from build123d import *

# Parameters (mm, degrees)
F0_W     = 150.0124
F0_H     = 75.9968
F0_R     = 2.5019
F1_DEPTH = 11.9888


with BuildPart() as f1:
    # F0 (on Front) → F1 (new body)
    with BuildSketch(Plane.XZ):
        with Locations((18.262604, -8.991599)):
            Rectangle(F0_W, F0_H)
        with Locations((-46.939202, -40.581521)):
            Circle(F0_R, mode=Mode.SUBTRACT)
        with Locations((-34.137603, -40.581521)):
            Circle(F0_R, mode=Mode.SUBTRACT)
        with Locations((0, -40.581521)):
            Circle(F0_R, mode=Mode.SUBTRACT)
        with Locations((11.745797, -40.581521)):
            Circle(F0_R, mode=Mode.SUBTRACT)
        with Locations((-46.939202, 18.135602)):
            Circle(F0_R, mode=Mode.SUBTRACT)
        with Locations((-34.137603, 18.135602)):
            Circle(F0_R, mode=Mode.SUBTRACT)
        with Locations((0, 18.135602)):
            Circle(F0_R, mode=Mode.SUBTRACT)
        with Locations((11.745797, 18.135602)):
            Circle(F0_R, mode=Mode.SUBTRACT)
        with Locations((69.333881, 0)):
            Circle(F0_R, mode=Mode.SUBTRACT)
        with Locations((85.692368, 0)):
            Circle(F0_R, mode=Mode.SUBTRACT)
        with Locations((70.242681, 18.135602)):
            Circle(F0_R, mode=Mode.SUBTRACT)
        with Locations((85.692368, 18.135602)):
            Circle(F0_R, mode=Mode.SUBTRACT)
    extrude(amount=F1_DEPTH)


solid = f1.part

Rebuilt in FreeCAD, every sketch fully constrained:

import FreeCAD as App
import Part
import Sketcher
Q = App.Units.Quantity

doc = App.newDocument("Part")
body = doc.addObject("PartDesign::Body", "Body")

sketch1 = body.newObject("Sketcher::SketchObject", "Sketch")
sketch1.AttachmentSupport = (doc.getObject("XZ_Plane"), [""])
sketch1.MapMode = "FlatFace"
sketch1.addGeometry([
    Part.LineSegment(App.Vector(-56.743596, 29.006801, 0), App.Vector(-56.743596, -46.989999, 0)),
    Part.LineSegment(App.Vector(-56.743596, -46.989999, 0), App.Vector(93.268804, -46.989999, 0)),
    Part.LineSegment(App.Vector(93.268804, -46.989999, 0), App.Vector(93.268804, 29.006801, 0)),
    Part.LineSegment(App.Vector(93.268804, 29.006801, 0), App.Vector(-56.743596, 29.006801, 0)),
    Part.Circle(App.Vector(-46.939202, -40.581521, 0), App.Vector(0, 0, 1), 2.5019),
    Part.Circle(App.Vector(-34.137603, -40.581521, 0), App.Vector(0, 0, 1), 2.5019),
    Part.Circle(App.Vector(0, -40.581521, 0), App.Vector(0, 0, 1), 2.5019),
    Part.Circle(App.Vector(11.745797, -40.581521, 0), App.Vector(0, 0, 1), 2.5019),
    Part.Circle(App.Vector(-46.939202, 18.135602, 0), App.Vector(0, 0, 1), 2.5019),
    Part.Circle(App.Vector(-34.137603, 18.135602, 0), App.Vector(0, 0, 1), 2.5019),
    Part.Circle(App.Vector(0, 18.135602, 0), App.Vector(0, 0, 1), 2.5019),
    Part.Circle(App.Vector(11.745797, 18.135602, 0), App.Vector(0, 0, 1), 2.5019),
    Part.Circle(App.Vector(69.333881, 0, 0), App.Vector(0, 0, 1), 2.5019),
    Part.Circle(App.Vector(85.692368, 0, 0), App.Vector(0, 0, 1), 2.5019),
    Part.Circle(App.Vector(70.242681, 18.135602, 0), App.Vector(0, 0, 1), 2.5019),
    Part.Circle(App.Vector(85.692368, 18.135602, 0), App.Vector(0, 0, 1), 2.5019),
], False)
sketch1.addConstraint([
    Sketcher.Constraint("Coincident", 0, 2, 1, 1),
    Sketcher.Constraint("Coincident", 1, 2, 2, 1),
    Sketcher.Constraint("Coincident", 2, 2, 3, 1),
    Sketcher.Constraint("Coincident", 3, 2, 0, 1),
    Sketcher.Constraint("Vertical", 0),
    Sketcher.Constraint("Horizontal", 1),
    Sketcher.Constraint("Vertical", 2),
    Sketcher.Constraint("Horizontal", 3),
    Sketcher.Constraint("Equal", 4, 5),
    Sketcher.Constraint("Equal", 5, 6),
    Sketcher.Constraint("Equal", 6, 7),
    Sketcher.Constraint("Equal", 7, 8),
    Sketcher.Constraint("Equal", 8, 9),
    Sketcher.Constraint("Equal", 9, 10),
    Sketcher.Constraint("Equal", 10, 11),
    Sketcher.Constraint("Equal", 11, 12),
    Sketcher.Constraint("Equal", 12, 13),
    Sketcher.Constraint("Equal", 13, 14),
    Sketcher.Constraint("Equal", 14, 15),
    Sketcher.Constraint("PointOnObject", 6, 3, -2),
    Sketcher.Constraint("PointOnObject", 10, 3, -2),
    Sketcher.Constraint("PointOnObject", 12, 3, -1),
    Sketcher.Constraint("PointOnObject", 13, 3, -1),
    Sketcher.Constraint("Horizontal", 4, 3, 5, 3),
    Sketcher.Constraint("Horizontal", 5, 3, 6, 3),
    Sketcher.Constraint("Horizontal", 6, 3, 7, 3),
    Sketcher.Constraint("Horizontal", 8, 3, 9, 3),
    Sketcher.Constraint("Horizontal", 9, 3, 10, 3),
    Sketcher.Constraint("Horizontal", 10, 3, 11, 3),
    Sketcher.Constraint("Horizontal", 11, 3, 14, 3),
    Sketcher.Constraint("Horizontal", 14, 3, 15, 3),
    Sketcher.Constraint("Vertical", 4, 3, 8, 3),
    Sketcher.Constraint("Vertical", 5, 3, 9, 3),
    Sketcher.Constraint("Vertical", 7, 3, 11, 3),
    Sketcher.Constraint("Vertical", 13, 3, 15, 3),
    Sketcher.Constraint("Diameter", 4, Q("0.197 in")),
    Sketcher.Constraint("DistanceX", 1, 1, 1, 2, Q("5.906 in")),
    Sketcher.Constraint("DistanceY", 0, 2, 0, 1, Q("2.992 in")),
    Sketcher.Constraint("DistanceY", 0, 2, -1, 1, Q("1.85 in")),
    Sketcher.Constraint("DistanceX", 4, 3, -1, 1, Q("1.8480001 in")),
    Sketcher.Constraint("DistanceX", 5, 3, -1, 1, Q("1.3440001 in")),
    Sketcher.Constraint("DistanceY", -1, 1, 8, 3, Q("0.7140001 in")),
    Sketcher.Constraint("DistanceX", 0, 2, -1, 1, Q("2.2339998 in")),
    Sketcher.Constraint("DistanceX", 5, 3, 7, 3, 45.8834),
    Sketcher.Constraint("DistanceX", 12, 3, 14, 3, 0.9088),
    Sketcher.Constraint("DistanceY", 4, 3, -1, 1, 40.581521),
    Sketcher.Constraint("DistanceX", -1, 1, 12, 3, 69.333881),
    Sketcher.Constraint("DistanceX", -1, 1, 13, 3, 85.692368),
])
pad1 = body.newObject("PartDesign::Pad", "Pad")
pad1.Profile = sketch1
pad1.Length = Q("0.472 in")

doc.recompute()
